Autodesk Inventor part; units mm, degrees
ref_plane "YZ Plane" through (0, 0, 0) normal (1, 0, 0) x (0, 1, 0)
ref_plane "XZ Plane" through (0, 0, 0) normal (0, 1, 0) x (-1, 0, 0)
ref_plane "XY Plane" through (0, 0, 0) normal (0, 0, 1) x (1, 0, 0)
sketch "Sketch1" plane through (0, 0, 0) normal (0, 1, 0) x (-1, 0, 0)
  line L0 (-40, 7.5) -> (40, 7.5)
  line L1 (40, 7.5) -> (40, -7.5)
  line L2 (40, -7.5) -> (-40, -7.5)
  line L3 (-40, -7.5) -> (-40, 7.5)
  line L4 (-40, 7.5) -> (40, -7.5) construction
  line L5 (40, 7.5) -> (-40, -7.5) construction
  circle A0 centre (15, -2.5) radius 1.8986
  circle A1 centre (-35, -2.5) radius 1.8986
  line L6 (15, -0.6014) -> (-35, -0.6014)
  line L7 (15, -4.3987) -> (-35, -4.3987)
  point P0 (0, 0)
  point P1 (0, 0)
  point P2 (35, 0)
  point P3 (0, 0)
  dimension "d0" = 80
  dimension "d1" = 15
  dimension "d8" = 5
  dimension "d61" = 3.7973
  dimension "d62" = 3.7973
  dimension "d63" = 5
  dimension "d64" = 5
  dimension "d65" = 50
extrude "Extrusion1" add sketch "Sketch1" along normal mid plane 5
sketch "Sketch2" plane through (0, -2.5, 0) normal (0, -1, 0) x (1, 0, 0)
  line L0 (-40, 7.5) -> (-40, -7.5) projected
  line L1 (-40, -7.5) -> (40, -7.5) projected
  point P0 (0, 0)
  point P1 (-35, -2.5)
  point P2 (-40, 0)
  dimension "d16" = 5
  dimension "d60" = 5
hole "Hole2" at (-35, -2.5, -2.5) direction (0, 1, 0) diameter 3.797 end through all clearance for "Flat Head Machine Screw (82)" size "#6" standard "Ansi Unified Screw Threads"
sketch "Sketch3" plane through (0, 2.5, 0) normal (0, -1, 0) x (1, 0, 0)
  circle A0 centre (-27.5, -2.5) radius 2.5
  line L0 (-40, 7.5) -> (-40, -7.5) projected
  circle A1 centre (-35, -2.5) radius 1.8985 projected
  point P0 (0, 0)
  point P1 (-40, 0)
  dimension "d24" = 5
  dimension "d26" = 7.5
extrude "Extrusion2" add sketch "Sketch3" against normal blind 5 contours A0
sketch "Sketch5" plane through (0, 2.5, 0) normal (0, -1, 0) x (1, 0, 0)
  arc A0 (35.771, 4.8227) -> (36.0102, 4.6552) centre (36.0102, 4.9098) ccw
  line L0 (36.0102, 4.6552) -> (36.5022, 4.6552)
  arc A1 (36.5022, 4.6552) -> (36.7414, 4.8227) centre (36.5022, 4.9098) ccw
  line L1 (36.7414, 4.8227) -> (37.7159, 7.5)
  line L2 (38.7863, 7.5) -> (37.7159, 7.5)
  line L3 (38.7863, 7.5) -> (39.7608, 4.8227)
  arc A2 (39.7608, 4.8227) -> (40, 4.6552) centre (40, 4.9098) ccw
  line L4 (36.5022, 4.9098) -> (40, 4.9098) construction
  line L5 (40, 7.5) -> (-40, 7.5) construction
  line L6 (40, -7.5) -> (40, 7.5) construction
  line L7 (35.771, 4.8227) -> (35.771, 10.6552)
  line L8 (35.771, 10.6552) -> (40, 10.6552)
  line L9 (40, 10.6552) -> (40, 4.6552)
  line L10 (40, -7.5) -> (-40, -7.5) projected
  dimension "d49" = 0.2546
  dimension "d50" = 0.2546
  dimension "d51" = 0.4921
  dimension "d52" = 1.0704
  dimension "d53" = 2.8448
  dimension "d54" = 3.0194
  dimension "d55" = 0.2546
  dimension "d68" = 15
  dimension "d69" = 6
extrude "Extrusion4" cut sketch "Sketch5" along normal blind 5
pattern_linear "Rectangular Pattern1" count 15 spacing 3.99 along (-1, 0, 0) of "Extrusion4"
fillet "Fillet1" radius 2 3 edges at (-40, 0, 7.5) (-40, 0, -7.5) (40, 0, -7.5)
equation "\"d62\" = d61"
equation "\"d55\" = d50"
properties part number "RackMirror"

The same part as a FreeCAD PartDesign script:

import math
import FreeCAD as App
import Part
import Sketcher

V = App.Vector
Q = App.Units.Quantity


def edges_at(feature, points):
    """Names of the edges that pass closest to the given points."""
    edges = feature.Shape.Edges
    near = lambda p: min(range(len(edges)), key=lambda i: edges[i].distToShape(Part.Vertex(*p))[0])
    return sorted({f"Edge{near(p) + 1}" for p in points})

doc = App.newDocument("Part")
body = doc.addObject("PartDesign::Body", "Body")

# Sketch on XZ plane
sketch1 = body.newObject("Sketcher::SketchObject", "Sketch")
sketch1.AttachmentSupport = (doc.getObject("XZ_Plane"), [""])
sketch1.MapMode = "FlatFace"
sketch1.addGeometry([
    Part.LineSegment(V(-40, 7.5, 0), V(40, 7.5, 0)),  # 0
    Part.LineSegment(V(40, 7.5, 0), V(40, -7.5, 0)),  # 1
    Part.LineSegment(V(40, -7.5, 0), V(-40, -7.5, 0)),  # 2
    Part.LineSegment(V(-40, -7.5, 0), V(-40, 7.5, 0)),  # 3
    Part.ArcOfCircle(Part.Circle(V(-15, -2.5, 0), V(0, 0, 1), 1.9), math.radians(90), math.radians(270)),  # 4
    Part.LineSegment(V(-15, -4.4, 0), V(35, -4.4, 0)),  # 5
    Part.ArcOfCircle(Part.Circle(V(35, -2.5, 0), V(0, 0, 1), 1.9), math.radians(-90), math.radians(90)),  # 6
    Part.LineSegment(V(35, -0.6, 0), V(-15, -0.6, 0)),  # 7
], False)
sketch1.addConstraint([
    Sketcher.Constraint("Coincident", 0, 2, 1, 1),
    Sketcher.Constraint("Coincident", 1, 2, 2, 1),
    Sketcher.Constraint("Coincident", 2, 2, 3, 1),
    Sketcher.Constraint("Coincident", 3, 2, 0, 1),
    Sketcher.Constraint("Tangent", 4, 2, 5, 1),
    Sketcher.Constraint("Tangent", 5, 2, 6, 1),
    Sketcher.Constraint("Tangent", 6, 2, 7, 1),
    Sketcher.Constraint("Tangent", 7, 2, 4, 1),
    Sketcher.Constraint("Horizontal", 0),
    Sketcher.Constraint("Vertical", 1),
    Sketcher.Constraint("Horizontal", 2),
    Sketcher.Constraint("Vertical", 3),
    Sketcher.Constraint("Horizontal", 5),
    Sketcher.Constraint("Horizontal", 7),
    Sketcher.Constraint("Symmetric", 0, 2, 2, 2, -1, 1),
    Sketcher.Constraint("DistanceX", 0, 1, 0, 2, Q("80 mm")),
    Sketcher.Constraint("DistanceX", 5, 1, 5, 2, Q("50 mm")),
    Sketcher.Constraint("DistanceY", 1, 2, 1, 1, Q("15 mm")),
    Sketcher.Constraint("DistanceX", 4, 3, -1, 1, Q("15 mm")),
    Sketcher.Constraint("DistanceY", 1, 2, 6, 3, Q("5 mm")),
    Sketcher.Constraint("Radius", 4, Q("1.8986 mm")),
])
pad1 = body.newObject("PartDesign::Pad", "Pad")
pad1.Profile = sketch1
pad1.Length = 5
pad1.Midplane = True

# Sketch on XZ plane
sketch2 = body.newObject("Sketcher::SketchObject", "Sketch001")
sketch2.AttachmentSupport = (doc.getObject("XZ_Plane"), [""])
sketch2.MapMode = "FlatFace"
sketch2.AttachmentOffset = App.Placement(V(0, 0, 2.5), App.Rotation())
sketch2.addGeometry(Part.Circle(V(-35, -2.5, 0), V(0, 0, 1), 1.9), False)
sketch2.addConstraint([
    Sketcher.Constraint("Diameter", 0, Q("3.797 mm")),
    Sketcher.Constraint("DistanceX", 0, 3, -1, 1, Q("35 mm")),
    Sketcher.Constraint("DistanceY", 0, 3, -1, 1, Q("2.5 mm")),
])
doc.recompute()
hole = body.newObject("PartDesign::Hole", "Hole")
hole.Profile = sketch2
hole.ThreadType = "None"
hole.Diameter = 3.797
hole.DepthType = "ThroughAll"

# Sketch on XZ plane
sketch3 = body.newObject("Sketcher::SketchObject", "Sketch002")
sketch3.AttachmentSupport = (doc.getObject("XZ_Plane"), [""])
sketch3.MapMode = "FlatFace"
sketch3.AttachmentOffset = App.Placement(V(0, 0, -2.5), App.Rotation())
sketch3.addGeometry(Part.Circle(V(-27.5, -2.5, 0), V(0, 0, 1), 2.5), False)
sketch3.addConstraint([
    Sketcher.Constraint("Diameter", 0, Q("5 mm")),
    Sketcher.Constraint("DistanceX", 0, 3, -1, 1, Q("27.5 mm")),
    Sketcher.Constraint("DistanceY", 0, 3, -1, 1, Q("2.5 mm")),
])
pad2 = body.newObject("PartDesign::Pad", "Pad001")
pad2.Profile = sketch3
pad2.Length = 5
pad2.Reversed = True

# Sketch on XZ plane
sketch4 = body.newObject("Sketcher::SketchObject", "Sketch003")
sketch4.AttachmentSupport = (doc.getObject("XZ_Plane"), [""])
sketch4.MapMode = "FlatFace"
sketch4.AttachmentOffset = App.Placement(V(0, 0, -2.5), App.Rotation())
sketch4.addGeometry([
    Part.LineSegment(V(35.77, 10.66, 0), V(35.77, 4.82, 0)),  # 0
    Part.ArcOfCircle(Part.Circle(V(36.01, 4.91, 0), V(0, 0, 1), 0.25), math.radians(-160), math.radians(-90)),  # 1
    Part.LineSegment(V(36.01, 4.66, 0), V(36.5, 4.66, 0)),  # 2
    Part.ArcOfCircle(Part.Circle(V(36.5, 4.91, 0), V(0, 0, 1), 0.25), math.radians(-90), math.radians(-20)),  # 3
    Part.LineSegment(V(36.74, 4.82, 0), V(37.72, 7.5, 0)),  # 4
    Part.LineSegment(V(37.72, 7.5, 0), V(38.79, 7.5, 0)),  # 5
    Part.LineSegment(V(38.79, 7.5, 0), V(39.76, 4.82, 0)),  # 6
    Part.ArcOfCircle(Part.Circle(V(40, 4.91, 0), V(0, 0, 1), 0.25), math.radians(-160), math.radians(-90)),  # 7
    Part.LineSegment(V(40, 4.66, 0), V(40, 10.66, 0)),  # 8
    Part.LineSegment(V(40, 10.66, 0), V(35.77, 10.66, 0)),  # 9
], False)
sketch4.addConstraint([
    Sketcher.Constraint("Coincident", 0, 2, 1, 1),
    Sketcher.Constraint("Tangent", 1, 2, 2, 1),
    Sketcher.Constraint("Tangent", 2, 2, 3, 1),
    Sketcher.Constraint("Tangent", 3, 2, 4, 1),
    Sketcher.Constraint("Coincident", 4, 2, 5, 1),
    Sketcher.Constraint("Coincident", 5, 2, 6, 1),
    Sketcher.Constraint("Tangent", 6, 2, 7, 1),
    Sketcher.Constraint("Coincident", 7, 2, 8, 1),
    Sketcher.Constraint("Coincident", 8, 2, 9, 1),
    Sketcher.Constraint("Coincident", 9, 2, 0, 1),
    Sketcher.Constraint("Vertical", 0),
    Sketcher.Constraint("Horizontal", 2),
    Sketcher.Constraint("Horizontal", 5),
    Sketcher.Constraint("Vertical", 8),
    Sketcher.Constraint("Horizontal", 9),
    Sketcher.Constraint("Equal", 1, 3),
    Sketcher.Constraint("Equal", 3, 7),
    Sketcher.Constraint("Horizontal", 3, 3, 7, 3),
    Sketcher.Constraint("Horizontal", 0, 2, 3, 2),
    Sketcher.Constraint("Horizontal", 3, 2, 6, 2),
    Sketcher.Constraint("DistanceY", 8, 1, 8, 2, Q("6 mm")),
    Sketcher.Constraint("Radius", 1, Q("0.2546 mm")),
    Sketcher.Constraint("DistanceX", 2, 1, 2, 2, Q("0.492 mm")),
    Sketcher.Constraint("Angle", 4, Q("69.9992 deg")),
    Sketcher.Constraint("DistanceX", 5, 1, 5, 2, Q("1.0704 mm")),
    Sketcher.Constraint("DistanceX", -1, 1, 7, 3, Q("40 mm")),
    Sketcher.Constraint("DistanceX", -1, 1, 7, 2, Q("40 mm")),
    Sketcher.Constraint("DistanceY", -1, 1, 4, 2, Q("7.5 mm")),
    Sketcher.Constraint("DistanceY", 2, 2, 4, 2, Q("2.8448 mm")),
])
pocket1 = body.newObject("PartDesign::Pocket", "Pocket")
pocket1.Profile = sketch4
pocket1.Length = 5
pocket1.Reversed = True
doc.recompute()

linearpattern = body.newObject("PartDesign::LinearPattern", "LinearPattern")
linearpattern.Originals = [pocket1]
linearpattern.Direction = (doc.getObject("X_Axis"), [""])
linearpattern.Mode = "offset"
linearpattern.Offset = 3.99
linearpattern.Occurrences = 15
linearpattern.Reversed = True
body.Tip = linearpattern
doc.recompute()

fillet = body.newObject("PartDesign::Fillet", "Fillet")
fillet.Base = (linearpattern, edges_at(linearpattern, [(-40, 0, 7.5), (-40, 0, -7.5), (40, 0, -7.5)]))
fillet.Radius = 2

doc.recompute()
